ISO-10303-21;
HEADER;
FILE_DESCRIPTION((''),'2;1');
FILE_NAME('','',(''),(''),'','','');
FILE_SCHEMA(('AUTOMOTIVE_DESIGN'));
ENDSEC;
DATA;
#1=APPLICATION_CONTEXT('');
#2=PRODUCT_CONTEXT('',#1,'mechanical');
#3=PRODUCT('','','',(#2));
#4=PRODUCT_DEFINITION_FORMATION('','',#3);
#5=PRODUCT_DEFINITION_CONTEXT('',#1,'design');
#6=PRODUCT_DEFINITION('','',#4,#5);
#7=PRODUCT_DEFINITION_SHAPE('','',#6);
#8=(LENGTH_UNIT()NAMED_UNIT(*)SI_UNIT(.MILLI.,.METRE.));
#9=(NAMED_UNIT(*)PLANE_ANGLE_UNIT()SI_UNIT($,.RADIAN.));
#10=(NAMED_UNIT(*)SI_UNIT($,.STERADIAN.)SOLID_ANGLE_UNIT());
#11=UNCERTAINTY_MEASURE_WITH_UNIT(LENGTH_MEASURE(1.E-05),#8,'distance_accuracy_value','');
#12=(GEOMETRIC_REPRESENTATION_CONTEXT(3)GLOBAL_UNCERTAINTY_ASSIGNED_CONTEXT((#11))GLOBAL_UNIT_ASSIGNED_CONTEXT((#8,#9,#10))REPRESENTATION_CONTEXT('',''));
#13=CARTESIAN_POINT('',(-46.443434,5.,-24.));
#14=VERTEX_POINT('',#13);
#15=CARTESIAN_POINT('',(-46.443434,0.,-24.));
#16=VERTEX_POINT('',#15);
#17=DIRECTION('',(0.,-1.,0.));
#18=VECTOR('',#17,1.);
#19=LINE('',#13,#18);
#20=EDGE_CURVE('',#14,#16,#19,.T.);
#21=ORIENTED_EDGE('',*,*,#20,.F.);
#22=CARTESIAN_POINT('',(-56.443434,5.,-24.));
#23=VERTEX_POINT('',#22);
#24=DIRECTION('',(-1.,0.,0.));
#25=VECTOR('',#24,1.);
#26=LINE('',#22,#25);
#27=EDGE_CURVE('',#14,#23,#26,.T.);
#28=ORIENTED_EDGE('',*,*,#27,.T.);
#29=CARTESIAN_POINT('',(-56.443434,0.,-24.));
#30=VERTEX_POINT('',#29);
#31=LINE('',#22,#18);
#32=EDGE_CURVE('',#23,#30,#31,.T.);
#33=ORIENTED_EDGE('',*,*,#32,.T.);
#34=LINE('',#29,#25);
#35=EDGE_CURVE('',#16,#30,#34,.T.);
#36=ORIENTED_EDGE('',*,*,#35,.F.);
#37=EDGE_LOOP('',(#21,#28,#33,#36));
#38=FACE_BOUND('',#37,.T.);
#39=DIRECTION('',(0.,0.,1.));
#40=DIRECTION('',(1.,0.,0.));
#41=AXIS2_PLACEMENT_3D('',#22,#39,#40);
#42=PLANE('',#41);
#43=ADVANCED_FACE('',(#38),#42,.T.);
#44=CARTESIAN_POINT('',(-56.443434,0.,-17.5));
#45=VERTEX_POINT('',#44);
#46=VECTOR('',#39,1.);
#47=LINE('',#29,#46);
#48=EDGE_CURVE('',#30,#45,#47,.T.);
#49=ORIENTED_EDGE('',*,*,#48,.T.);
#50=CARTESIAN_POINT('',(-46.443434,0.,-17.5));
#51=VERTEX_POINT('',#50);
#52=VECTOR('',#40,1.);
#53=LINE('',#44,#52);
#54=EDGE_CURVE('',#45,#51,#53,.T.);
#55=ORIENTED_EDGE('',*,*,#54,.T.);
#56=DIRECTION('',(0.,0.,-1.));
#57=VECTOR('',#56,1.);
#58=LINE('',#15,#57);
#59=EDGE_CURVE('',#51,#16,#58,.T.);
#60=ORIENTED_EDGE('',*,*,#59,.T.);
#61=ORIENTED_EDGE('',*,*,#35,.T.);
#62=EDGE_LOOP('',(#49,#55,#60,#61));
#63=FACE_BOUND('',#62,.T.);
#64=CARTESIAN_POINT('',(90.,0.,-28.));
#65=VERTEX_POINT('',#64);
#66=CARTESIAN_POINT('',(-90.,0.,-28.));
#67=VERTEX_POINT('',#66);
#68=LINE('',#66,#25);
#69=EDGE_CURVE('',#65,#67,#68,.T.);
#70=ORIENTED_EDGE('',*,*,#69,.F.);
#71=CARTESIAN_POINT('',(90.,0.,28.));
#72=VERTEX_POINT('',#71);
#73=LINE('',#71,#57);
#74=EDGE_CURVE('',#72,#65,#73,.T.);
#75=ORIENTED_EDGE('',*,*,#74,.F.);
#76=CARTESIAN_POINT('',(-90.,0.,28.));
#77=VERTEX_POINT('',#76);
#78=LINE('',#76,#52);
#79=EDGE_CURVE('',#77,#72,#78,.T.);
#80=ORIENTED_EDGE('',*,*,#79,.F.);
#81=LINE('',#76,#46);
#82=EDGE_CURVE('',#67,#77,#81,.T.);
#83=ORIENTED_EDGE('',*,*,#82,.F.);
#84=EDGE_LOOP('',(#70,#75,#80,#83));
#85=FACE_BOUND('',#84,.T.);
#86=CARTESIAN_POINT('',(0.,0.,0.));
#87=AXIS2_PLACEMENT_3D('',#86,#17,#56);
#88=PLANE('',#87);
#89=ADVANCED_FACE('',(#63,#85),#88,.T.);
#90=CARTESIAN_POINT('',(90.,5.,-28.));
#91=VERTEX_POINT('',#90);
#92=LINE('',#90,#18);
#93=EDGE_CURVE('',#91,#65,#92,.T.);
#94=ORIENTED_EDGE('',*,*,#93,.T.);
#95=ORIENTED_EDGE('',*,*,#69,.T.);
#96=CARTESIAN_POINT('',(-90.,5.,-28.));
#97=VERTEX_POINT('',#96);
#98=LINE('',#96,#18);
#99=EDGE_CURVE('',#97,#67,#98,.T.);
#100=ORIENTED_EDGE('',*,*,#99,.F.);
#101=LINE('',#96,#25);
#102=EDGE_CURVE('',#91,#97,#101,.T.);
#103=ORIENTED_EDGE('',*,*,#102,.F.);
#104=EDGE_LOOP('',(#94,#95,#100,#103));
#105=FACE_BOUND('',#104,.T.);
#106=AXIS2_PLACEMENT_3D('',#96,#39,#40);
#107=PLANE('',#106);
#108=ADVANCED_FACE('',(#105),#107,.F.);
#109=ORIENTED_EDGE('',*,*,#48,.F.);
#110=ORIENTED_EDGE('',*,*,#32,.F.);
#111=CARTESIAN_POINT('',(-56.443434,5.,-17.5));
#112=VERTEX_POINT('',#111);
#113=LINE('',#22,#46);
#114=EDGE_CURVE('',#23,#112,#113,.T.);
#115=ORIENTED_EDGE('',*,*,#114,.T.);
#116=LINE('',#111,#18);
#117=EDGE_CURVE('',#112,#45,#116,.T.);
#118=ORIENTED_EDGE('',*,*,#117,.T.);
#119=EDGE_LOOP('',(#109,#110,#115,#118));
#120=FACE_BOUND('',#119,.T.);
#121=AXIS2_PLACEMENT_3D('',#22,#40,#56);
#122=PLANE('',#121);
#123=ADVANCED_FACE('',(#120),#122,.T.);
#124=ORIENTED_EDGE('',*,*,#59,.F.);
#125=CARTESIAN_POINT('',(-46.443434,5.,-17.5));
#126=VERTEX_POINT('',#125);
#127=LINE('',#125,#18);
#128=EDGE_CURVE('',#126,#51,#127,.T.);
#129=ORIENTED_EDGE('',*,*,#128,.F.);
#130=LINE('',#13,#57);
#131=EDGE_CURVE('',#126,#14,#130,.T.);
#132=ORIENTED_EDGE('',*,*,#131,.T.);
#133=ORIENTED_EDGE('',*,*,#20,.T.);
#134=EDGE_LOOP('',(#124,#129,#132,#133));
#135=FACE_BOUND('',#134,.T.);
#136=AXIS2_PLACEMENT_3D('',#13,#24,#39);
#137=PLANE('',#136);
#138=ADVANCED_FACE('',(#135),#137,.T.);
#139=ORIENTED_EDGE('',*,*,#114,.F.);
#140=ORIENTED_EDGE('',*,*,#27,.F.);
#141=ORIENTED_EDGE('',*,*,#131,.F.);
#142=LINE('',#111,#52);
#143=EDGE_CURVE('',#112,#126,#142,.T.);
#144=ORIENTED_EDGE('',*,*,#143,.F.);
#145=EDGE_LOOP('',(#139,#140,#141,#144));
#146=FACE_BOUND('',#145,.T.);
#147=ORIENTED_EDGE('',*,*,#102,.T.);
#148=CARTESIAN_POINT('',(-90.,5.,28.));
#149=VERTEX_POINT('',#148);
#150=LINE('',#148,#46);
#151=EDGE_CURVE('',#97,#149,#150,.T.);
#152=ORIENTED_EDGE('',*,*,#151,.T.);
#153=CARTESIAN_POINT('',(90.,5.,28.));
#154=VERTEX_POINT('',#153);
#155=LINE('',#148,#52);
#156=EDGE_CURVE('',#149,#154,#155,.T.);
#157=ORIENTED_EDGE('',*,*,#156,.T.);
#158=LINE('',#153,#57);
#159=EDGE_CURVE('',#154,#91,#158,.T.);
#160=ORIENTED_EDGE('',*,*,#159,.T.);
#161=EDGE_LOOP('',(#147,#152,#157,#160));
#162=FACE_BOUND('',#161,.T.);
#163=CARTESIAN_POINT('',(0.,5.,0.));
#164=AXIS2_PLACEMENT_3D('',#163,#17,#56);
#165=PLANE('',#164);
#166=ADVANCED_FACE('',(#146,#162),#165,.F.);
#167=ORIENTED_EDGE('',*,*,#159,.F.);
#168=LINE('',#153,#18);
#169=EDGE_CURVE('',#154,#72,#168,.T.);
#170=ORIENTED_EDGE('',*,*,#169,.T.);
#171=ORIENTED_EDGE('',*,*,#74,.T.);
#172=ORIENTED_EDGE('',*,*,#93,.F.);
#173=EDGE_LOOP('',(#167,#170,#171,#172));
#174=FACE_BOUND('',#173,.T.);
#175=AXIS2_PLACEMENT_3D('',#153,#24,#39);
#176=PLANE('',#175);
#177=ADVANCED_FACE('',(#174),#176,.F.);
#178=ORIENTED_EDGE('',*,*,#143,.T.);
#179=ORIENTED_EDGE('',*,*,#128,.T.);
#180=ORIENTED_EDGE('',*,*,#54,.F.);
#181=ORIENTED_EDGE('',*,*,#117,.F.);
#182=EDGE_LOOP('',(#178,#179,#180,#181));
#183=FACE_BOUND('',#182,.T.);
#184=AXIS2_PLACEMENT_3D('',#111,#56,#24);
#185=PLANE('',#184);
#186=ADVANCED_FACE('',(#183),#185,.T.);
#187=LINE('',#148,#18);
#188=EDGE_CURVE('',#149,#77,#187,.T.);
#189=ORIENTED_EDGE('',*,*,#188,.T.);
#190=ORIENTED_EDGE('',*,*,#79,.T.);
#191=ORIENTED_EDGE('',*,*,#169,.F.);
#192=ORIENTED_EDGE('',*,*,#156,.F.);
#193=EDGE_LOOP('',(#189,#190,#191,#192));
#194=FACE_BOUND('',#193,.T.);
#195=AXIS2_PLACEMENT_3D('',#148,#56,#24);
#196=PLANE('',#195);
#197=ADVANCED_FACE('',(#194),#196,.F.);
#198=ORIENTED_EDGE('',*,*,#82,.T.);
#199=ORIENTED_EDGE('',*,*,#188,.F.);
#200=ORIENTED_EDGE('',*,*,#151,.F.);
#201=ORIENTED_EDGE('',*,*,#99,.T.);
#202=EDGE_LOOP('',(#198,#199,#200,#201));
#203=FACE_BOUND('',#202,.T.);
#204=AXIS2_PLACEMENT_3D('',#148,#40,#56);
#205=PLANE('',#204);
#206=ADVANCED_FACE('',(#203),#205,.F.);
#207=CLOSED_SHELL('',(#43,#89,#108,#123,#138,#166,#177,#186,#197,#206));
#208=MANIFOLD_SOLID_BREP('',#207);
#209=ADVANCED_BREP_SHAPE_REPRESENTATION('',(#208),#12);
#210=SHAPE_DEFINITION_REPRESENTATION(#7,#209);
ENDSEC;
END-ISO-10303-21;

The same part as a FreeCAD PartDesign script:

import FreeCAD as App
import Part
import Sketcher

V = App.Vector
Q = App.Units.Quantity


def add_polygon(sketch, points):
    """Adds a closed chain of lines whose ends are joined by coincident constraints."""
    first, n = sketch.GeometryCount, len(points)
    for a, b in zip(points, points[1:] + points[:1]):
        sketch.addGeometry(Part.LineSegment(App.Vector(*a, 0), App.Vector(*b, 0)), False)
    for i in range(n):
        sketch.addConstraint(Sketcher.Constraint("Coincident", first + i, 2, first + (i + 1) % n, 1))

doc = App.newDocument("Part")
body = doc.addObject("PartDesign::Body", "Body")

# Sketch on XZ plane
sketch1 = body.newObject("Sketcher::SketchObject", "Sketch")
sketch1.AttachmentSupport = (doc.getObject("XZ_Plane"), [""])
sketch1.MapMode = "FlatFace"
add_polygon(sketch1, [(-90, -28), (-90, 28), (90, 28), (90, -28)])  # lines 0-3
add_polygon(sketch1, [(-46, -18), (-56, -18), (-56, -24), (-46, -24)])  # lines 4-7
sketch1.addConstraint(Sketcher.Constraint("Vertical", 0))
sketch1.addConstraint(Sketcher.Constraint("Horizontal", 1))
sketch1.addConstraint(Sketcher.Constraint("Vertical", 2))
sketch1.addConstraint(Sketcher.Constraint("Horizontal", 3))
sketch1.addConstraint(Sketcher.Constraint("Horizontal", 4))
sketch1.addConstraint(Sketcher.Constraint("Vertical", 5))
sketch1.addConstraint(Sketcher.Constraint("Horizontal", 6))
sketch1.addConstraint(Sketcher.Constraint("Vertical", 7))
sketch1.addConstraint(Sketcher.Constraint("Symmetric", 0, 2, 2, 2, -1, 1))
sketch1.addConstraint(Sketcher.Constraint("DistanceX", 1, 1, 1, 2, Q("180 mm")))
sketch1.addConstraint(Sketcher.Constraint("DistanceX", 4, 2, 4, 1, Q("10 mm")))
sketch1.addConstraint(Sketcher.Constraint("DistanceY", 0, 1, 0, 2, Q("56 mm")))
sketch1.addConstraint(Sketcher.Constraint("DistanceY", 5, 2, 5, 1, Q("6.5 mm")))
sketch1.addConstraint(Sketcher.Constraint("DistanceY", 5, 2, -1, 1, Q("24 mm")))
sketch1.addConstraint(Sketcher.Constraint("DistanceX", 4, 2, -1, 1, Q("56.443434 mm")))
pad1 = body.newObject("PartDesign::Pad", "Pad")
pad1.Profile = sketch1
pad1.Length = 5
pad1.Reversed = True

doc.recompute()
